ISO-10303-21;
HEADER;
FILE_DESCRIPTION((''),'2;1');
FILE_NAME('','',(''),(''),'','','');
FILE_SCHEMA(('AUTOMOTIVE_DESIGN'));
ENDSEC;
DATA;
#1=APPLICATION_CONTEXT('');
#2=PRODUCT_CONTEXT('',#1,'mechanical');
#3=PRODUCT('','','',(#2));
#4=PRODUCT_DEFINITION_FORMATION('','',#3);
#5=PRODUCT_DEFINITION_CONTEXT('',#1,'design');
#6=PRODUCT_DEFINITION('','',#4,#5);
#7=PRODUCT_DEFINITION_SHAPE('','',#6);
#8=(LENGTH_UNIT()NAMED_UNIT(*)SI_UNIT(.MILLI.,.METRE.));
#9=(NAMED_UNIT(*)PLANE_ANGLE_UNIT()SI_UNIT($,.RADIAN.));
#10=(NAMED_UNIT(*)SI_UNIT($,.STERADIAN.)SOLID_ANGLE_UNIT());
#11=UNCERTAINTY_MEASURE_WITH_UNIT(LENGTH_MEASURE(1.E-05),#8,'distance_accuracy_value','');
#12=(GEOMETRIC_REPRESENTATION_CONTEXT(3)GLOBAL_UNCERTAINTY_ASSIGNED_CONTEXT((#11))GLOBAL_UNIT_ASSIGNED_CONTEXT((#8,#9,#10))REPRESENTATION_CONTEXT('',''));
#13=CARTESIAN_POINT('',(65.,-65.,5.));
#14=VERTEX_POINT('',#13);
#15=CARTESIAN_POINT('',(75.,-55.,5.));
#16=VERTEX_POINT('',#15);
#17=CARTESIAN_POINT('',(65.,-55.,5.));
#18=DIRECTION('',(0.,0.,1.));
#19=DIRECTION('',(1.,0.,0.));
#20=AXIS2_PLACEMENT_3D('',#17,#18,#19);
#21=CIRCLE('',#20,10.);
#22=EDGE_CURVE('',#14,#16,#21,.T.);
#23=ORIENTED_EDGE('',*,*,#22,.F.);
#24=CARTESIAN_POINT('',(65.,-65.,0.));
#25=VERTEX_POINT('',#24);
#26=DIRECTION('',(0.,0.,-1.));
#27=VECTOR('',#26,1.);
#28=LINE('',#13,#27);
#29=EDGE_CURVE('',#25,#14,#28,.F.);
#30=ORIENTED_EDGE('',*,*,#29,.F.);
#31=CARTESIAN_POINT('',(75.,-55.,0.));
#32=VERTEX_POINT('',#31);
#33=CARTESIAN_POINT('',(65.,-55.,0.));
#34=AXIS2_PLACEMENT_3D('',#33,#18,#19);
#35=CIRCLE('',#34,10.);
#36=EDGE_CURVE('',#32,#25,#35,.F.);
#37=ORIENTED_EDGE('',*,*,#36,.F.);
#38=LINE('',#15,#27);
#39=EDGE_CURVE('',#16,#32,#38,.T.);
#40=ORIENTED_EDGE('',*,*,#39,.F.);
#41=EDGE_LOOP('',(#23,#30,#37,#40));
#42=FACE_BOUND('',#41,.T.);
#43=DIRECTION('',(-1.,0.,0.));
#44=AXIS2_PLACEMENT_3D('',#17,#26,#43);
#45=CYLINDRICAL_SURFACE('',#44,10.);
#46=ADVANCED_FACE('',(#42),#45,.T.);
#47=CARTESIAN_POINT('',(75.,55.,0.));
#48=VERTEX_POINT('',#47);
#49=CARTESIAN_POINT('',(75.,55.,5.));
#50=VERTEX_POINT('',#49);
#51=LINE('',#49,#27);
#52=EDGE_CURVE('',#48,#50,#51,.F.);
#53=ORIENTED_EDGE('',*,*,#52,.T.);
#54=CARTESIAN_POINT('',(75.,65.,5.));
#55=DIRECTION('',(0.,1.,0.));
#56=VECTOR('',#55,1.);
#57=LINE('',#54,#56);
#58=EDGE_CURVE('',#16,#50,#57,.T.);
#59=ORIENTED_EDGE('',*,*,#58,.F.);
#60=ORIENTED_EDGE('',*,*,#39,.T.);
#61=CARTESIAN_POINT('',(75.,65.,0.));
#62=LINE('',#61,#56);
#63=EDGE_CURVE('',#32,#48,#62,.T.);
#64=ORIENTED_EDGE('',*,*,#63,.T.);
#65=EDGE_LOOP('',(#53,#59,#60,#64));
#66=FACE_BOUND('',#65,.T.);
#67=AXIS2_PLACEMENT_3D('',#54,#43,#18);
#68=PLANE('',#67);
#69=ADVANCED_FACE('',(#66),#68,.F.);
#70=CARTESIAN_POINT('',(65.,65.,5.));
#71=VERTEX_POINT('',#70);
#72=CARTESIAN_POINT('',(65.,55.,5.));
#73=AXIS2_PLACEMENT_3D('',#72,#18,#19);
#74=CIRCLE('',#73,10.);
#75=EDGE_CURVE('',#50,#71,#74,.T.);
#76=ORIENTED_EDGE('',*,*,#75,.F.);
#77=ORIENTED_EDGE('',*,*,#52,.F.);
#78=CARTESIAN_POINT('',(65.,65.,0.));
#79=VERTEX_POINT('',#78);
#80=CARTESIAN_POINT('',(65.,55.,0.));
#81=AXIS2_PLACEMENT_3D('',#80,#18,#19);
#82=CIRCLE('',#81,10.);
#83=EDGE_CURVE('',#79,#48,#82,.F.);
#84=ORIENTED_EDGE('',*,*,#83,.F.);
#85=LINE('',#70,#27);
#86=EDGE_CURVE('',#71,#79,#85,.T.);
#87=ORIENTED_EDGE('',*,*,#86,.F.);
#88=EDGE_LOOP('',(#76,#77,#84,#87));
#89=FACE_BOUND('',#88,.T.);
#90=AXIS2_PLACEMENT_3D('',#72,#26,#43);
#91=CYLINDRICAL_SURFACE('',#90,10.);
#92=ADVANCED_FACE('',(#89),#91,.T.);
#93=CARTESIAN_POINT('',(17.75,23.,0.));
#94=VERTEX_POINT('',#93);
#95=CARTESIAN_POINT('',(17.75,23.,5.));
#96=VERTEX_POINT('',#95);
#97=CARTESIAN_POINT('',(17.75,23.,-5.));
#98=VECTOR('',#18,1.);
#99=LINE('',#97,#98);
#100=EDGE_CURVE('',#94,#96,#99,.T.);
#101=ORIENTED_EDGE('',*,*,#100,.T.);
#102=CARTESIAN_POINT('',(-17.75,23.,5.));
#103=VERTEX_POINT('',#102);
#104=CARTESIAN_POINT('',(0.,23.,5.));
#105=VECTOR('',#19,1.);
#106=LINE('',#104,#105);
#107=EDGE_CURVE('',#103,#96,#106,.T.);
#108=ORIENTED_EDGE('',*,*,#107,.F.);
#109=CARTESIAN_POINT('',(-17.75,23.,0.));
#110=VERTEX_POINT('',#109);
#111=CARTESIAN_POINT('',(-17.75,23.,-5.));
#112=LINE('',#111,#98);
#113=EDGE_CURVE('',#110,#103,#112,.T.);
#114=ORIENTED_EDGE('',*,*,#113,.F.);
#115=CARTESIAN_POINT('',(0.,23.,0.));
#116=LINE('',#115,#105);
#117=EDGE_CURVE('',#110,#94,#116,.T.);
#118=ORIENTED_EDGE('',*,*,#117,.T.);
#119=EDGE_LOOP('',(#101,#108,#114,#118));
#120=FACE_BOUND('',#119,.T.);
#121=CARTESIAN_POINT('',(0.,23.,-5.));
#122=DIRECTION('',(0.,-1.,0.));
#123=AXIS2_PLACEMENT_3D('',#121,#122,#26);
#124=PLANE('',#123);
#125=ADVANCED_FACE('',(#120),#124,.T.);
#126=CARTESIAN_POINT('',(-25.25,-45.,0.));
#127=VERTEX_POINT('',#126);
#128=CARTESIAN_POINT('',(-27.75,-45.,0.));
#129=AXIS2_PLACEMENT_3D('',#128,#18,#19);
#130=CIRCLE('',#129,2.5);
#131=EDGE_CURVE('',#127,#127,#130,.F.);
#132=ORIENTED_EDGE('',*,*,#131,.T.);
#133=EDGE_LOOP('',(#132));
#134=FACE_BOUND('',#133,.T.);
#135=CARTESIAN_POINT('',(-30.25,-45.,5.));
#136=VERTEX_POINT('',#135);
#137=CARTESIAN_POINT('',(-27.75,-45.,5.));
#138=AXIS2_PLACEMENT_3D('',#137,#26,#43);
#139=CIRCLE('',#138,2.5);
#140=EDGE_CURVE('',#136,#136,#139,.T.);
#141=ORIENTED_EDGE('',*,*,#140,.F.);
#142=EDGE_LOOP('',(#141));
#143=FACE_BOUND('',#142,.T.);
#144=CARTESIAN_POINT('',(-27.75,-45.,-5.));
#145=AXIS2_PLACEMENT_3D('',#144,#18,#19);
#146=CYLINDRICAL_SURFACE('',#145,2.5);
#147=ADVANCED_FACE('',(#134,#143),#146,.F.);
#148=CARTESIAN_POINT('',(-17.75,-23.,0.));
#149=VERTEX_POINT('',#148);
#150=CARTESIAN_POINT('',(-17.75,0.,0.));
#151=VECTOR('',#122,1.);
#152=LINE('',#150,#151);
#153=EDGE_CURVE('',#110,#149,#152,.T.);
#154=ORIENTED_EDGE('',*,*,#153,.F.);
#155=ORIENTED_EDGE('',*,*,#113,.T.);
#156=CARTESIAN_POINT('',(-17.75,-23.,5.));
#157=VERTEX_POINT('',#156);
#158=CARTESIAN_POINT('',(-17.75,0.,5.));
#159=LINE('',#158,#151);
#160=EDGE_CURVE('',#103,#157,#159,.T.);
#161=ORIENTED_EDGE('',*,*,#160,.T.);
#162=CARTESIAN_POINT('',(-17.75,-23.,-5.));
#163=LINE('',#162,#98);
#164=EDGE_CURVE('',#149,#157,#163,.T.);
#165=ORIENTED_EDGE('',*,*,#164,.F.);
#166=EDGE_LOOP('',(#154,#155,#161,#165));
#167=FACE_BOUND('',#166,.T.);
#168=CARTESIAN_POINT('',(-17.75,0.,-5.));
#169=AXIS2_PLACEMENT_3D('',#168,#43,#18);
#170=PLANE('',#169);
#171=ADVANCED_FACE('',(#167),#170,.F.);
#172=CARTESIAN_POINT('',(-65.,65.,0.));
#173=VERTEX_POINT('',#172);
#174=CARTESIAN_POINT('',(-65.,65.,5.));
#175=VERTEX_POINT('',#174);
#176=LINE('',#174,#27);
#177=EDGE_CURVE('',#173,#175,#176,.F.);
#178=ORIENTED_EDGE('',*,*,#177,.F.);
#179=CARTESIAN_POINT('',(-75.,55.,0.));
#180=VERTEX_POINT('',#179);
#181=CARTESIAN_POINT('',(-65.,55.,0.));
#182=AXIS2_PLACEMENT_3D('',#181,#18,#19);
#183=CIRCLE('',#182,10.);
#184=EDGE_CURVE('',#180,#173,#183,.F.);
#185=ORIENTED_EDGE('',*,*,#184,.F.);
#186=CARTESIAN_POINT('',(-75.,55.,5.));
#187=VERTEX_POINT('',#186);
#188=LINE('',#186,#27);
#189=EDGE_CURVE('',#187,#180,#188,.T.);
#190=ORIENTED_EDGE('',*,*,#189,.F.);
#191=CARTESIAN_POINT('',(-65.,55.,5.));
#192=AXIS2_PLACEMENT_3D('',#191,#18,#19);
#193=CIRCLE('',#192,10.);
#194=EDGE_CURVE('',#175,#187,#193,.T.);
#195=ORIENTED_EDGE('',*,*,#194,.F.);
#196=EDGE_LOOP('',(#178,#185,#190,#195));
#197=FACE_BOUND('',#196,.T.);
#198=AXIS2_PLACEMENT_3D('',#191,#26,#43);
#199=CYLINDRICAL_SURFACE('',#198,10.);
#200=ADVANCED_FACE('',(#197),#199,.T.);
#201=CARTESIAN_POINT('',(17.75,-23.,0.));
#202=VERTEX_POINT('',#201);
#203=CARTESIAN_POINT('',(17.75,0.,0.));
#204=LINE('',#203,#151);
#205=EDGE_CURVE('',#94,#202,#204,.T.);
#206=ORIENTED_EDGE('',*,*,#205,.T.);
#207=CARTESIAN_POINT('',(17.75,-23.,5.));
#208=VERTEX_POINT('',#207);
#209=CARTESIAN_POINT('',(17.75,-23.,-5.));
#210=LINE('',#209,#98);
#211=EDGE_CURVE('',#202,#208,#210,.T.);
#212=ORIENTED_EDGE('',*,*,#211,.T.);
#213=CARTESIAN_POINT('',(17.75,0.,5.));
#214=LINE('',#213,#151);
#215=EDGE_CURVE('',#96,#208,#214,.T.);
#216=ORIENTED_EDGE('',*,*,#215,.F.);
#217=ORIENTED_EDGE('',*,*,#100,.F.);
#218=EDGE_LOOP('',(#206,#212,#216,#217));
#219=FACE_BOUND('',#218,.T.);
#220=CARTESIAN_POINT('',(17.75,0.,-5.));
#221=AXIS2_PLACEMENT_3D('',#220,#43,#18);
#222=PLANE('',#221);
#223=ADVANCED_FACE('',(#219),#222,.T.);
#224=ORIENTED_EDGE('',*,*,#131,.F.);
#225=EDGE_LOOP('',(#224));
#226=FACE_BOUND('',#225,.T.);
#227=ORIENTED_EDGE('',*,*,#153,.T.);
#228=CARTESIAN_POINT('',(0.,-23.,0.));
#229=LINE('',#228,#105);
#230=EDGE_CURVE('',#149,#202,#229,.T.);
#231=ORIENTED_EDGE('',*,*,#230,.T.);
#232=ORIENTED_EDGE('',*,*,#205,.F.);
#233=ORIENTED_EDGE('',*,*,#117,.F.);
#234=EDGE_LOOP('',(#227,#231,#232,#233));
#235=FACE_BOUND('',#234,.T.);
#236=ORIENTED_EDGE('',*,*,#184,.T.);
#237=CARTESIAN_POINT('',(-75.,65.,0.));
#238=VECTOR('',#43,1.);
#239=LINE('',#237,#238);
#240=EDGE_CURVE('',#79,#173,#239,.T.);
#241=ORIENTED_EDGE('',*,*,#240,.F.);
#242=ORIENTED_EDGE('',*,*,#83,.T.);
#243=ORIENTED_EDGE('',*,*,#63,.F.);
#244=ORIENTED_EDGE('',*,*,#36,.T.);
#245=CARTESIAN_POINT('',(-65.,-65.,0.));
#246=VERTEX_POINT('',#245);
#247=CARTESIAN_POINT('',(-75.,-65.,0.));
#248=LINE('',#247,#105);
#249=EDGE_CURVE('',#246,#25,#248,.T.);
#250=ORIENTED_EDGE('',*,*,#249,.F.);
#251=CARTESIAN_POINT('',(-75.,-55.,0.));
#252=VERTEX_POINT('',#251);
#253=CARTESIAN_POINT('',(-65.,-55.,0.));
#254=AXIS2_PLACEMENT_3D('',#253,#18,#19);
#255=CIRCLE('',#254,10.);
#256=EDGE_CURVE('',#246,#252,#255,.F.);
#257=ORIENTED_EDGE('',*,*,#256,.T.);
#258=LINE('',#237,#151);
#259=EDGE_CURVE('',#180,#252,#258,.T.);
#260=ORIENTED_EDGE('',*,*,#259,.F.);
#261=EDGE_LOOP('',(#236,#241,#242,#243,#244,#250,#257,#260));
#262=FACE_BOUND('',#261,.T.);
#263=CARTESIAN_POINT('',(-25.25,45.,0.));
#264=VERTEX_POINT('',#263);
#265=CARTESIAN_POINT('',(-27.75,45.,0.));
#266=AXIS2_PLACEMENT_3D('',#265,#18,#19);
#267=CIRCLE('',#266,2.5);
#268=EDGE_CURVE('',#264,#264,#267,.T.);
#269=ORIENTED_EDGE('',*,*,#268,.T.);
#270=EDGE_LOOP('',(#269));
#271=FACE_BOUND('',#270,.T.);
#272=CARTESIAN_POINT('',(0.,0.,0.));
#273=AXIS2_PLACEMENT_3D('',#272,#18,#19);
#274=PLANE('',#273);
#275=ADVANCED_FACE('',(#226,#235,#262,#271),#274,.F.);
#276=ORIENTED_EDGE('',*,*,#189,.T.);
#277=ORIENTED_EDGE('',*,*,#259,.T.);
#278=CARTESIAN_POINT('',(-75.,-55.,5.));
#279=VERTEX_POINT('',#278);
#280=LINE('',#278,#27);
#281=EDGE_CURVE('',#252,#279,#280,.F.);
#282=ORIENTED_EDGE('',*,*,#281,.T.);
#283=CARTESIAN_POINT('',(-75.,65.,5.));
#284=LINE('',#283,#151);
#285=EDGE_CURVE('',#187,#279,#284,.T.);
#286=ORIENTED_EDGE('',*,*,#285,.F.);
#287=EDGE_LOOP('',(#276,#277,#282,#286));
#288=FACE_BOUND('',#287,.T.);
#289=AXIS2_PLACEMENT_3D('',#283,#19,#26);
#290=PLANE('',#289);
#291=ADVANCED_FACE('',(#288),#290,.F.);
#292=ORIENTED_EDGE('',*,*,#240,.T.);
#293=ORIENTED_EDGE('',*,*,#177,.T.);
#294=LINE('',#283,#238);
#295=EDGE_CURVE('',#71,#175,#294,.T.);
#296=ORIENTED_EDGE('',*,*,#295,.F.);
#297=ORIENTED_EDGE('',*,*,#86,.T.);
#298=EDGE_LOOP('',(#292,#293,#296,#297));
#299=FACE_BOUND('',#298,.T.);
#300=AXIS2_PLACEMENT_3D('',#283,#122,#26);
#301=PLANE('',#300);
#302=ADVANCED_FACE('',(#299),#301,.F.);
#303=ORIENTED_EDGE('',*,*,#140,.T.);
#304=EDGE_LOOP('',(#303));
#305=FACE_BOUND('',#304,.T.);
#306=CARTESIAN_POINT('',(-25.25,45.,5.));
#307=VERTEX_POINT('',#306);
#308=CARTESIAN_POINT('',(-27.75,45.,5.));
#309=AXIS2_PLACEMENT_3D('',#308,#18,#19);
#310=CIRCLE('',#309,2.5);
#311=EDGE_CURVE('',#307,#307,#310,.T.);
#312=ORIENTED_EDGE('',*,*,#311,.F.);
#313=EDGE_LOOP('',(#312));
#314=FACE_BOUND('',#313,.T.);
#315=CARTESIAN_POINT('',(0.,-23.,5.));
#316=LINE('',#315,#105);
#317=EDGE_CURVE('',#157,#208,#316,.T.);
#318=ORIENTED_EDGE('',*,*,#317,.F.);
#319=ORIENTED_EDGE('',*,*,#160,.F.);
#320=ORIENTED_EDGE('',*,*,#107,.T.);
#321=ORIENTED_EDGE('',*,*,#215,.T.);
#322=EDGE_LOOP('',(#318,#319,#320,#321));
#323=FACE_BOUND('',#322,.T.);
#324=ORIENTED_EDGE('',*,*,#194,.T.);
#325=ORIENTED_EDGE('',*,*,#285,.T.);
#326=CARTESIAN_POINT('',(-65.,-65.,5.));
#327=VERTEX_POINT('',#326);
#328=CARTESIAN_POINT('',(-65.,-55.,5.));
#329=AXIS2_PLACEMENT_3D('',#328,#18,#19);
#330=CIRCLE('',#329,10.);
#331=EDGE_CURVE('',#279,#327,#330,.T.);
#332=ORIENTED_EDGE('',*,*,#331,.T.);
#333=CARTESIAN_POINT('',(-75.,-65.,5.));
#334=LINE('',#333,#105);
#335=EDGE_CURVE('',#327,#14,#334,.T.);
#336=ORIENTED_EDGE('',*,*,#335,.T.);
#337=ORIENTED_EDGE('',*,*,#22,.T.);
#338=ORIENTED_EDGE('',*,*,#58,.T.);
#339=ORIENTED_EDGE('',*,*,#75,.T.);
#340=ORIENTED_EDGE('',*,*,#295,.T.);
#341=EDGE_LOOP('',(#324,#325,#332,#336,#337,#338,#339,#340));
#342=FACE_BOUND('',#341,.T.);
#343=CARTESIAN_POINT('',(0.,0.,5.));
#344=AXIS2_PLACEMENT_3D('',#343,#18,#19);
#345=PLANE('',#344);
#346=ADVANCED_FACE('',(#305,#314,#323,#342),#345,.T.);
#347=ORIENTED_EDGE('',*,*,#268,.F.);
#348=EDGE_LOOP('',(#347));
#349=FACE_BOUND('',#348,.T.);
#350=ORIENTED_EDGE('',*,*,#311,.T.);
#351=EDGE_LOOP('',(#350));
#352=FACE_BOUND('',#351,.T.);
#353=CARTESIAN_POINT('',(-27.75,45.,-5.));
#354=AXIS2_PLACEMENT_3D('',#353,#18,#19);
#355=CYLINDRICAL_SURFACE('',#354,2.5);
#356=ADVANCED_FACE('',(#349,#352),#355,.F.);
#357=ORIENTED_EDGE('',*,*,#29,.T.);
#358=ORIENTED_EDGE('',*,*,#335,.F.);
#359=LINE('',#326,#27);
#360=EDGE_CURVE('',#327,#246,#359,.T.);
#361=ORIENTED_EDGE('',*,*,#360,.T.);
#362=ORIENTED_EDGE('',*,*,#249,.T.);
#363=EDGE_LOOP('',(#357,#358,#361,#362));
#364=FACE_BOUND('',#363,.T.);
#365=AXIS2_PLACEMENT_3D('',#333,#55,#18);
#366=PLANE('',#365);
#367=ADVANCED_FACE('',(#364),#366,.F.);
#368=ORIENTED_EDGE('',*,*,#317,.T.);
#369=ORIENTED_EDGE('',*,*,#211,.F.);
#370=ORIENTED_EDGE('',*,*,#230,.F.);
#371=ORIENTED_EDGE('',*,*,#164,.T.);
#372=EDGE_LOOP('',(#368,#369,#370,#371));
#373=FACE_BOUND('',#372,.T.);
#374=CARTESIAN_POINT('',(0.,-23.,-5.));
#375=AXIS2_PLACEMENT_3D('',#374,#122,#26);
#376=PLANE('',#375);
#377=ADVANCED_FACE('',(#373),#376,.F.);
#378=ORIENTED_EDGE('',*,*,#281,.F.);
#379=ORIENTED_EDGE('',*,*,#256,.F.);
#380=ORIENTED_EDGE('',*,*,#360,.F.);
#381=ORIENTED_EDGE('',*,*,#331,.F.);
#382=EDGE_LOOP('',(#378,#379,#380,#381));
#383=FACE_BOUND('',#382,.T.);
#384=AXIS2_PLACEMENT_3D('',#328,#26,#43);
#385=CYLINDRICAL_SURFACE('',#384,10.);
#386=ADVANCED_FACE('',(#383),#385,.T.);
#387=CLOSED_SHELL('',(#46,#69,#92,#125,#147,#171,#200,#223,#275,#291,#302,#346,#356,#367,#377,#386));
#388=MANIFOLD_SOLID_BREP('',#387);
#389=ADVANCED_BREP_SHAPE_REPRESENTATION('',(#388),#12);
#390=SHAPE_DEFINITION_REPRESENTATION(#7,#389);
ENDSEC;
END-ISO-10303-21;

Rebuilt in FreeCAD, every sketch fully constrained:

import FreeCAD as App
import Part
import Sketcher
from FreeCAD import Vector
Q = App.Units.Quantity


def edges_at(feature, points):
    """Names of the edges that pass closest to the given points."""
    edges = feature.Shape.Edges
    near = lambda p: min(range(len(edges)), key=lambda i: edges[i].distToShape(Part.Vertex(*p))[0])
    return sorted({f"Edge{near(p) + 1}" for p in points})

doc = App.newDocument("Part")
body = doc.addObject("PartDesign::Body", "Body")

# Sketch on XY plane
sketch1 = body.newObject("Sketcher::SketchObject", "Sketch")
sketch1.AttachmentSupport = (doc.getObject("XY_Plane"), [""])
sketch1.MapMode = "FlatFace"
sketch1.addGeometry(Part.LineSegment(Vector(-75, 65, 0), Vector(-75, -65, 0)), False)
sketch1.addGeometry(Part.LineSegment(Vector(-75, -65, 0), Vector(75, -65, 0)), False)
sketch1.addGeometry(Part.LineSegment(Vector(75, -65, 0), Vector(75, 65, 0)), False)
sketch1.addGeometry(Part.LineSegment(Vector(75, 65, 0), Vector(-75, 65, 0)), False)
sketch1.addConstraint(Sketcher.Constraint("Coincident", 0, 2, 1, 1))
sketch1.addConstraint(Sketcher.Constraint("Coincident", 1, 2, 2, 1))
sketch1.addConstraint(Sketcher.Constraint("Coincident", 2, 2, 3, 1))
sketch1.addConstraint(Sketcher.Constraint("Coincident", 3, 2, 0, 1))
sketch1.addConstraint(Sketcher.Constraint("Vertical", 0))
sketch1.addConstraint(Sketcher.Constraint("Horizontal", 1))
sketch1.addConstraint(Sketcher.Constraint("Vertical", 2))
sketch1.addConstraint(Sketcher.Constraint("Horizontal", 3))
sketch1.addConstraint(Sketcher.Constraint("Symmetric", 0, 2, 2, 2, -1, 1))
sketch1.addConstraint(Sketcher.Constraint("DistanceX", 1, 1, 1, 2, Q("150 mm")))
sketch1.addConstraint(Sketcher.Constraint("DistanceY", 0, 2, 0, 1, Q("130 mm")))
pad1 = body.newObject("PartDesign::Pad", "Pad")
pad1.Profile = sketch1
pad1.Length = 5

# Sketch on XY plane
sketch2 = body.newObject("Sketcher::SketchObject", "Sketch001")
sketch2.AttachmentSupport = (doc.getObject("XY_Plane"), [""])
sketch2.MapMode = "FlatFace"
sketch2.AttachmentOffset = App.Placement(Vector(0, 0, 5), App.Rotation())
sketch2.addGeometry(Part.LineSegment(Vector(-17.8, 23, 0), Vector(-17.8, -23, 0)), False)
sketch2.addGeometry(Part.LineSegment(Vector(-17.8, -23, 0), Vector(17.8, -23, 0)), False)
sketch2.addGeometry(Part.LineSegment(Vector(17.8, -23, 0), Vector(17.8, 23, 0)), False)
sketch2.addGeometry(Part.LineSegment(Vector(17.8, 23, 0), Vector(-17.8, 23, 0)), False)
sketch2.addGeometry(Part.Circle(Vector(-27.8, -45, 0), Vector(0, 0, 1), 2.5), False)
sketch2.addGeometry(Part.Circle(Vector(-27.8, 45, 0), Vector(0, 0, 1), 2.5), False)
sketch2.addConstraint(Sketcher.Constraint("Coincident", 0, 2, 1, 1))
sketch2.addConstraint(Sketcher.Constraint("Coincident", 1, 2, 2, 1))
sketch2.addConstraint(Sketcher.Constraint("Coincident", 2, 2, 3, 1))
sketch2.addConstraint(Sketcher.Constraint("Coincident", 3, 2, 0, 1))
sketch2.addConstraint(Sketcher.Constraint("Vertical", 0))
sketch2.addConstraint(Sketcher.Constraint("Horizontal", 1))
sketch2.addConstraint(Sketcher.Constraint("Vertical", 2))
sketch2.addConstraint(Sketcher.Constraint("Horizontal", 3))
sketch2.addConstraint(Sketcher.Constraint("Equal", 4, 5))
sketch2.addConstraint(Sketcher.Constraint("Symmetric", 0, 2, 2, 2, -1, 1))
sketch2.addConstraint(Sketcher.Constraint("Symmetric", 4, 3, 5, 3, -1))
sketch2.addConstraint(Sketcher.Constraint("Diameter", 4, Q("5 mm")))
sketch2.addConstraint(Sketcher.Constraint("DistanceY", 0, 2, 0, 1, Q("46 mm")))
sketch2.addConstraint(Sketcher.Constraint("DistanceX", 1, 1, 1, 2, Q("35.5 mm")))
sketch2.addConstraint(Sketcher.Constraint("DistanceY", 4, 3, -1, 1, Q("45 mm")))
sketch2.addConstraint(Sketcher.Constraint("DistanceX", 4, 3, 0, 2, Q("10 mm")))
pocket1 = body.newObject("PartDesign::Pocket", "Pocket")
pocket1.Profile = sketch2
pocket1.Length = 10
doc.recompute()

fillet = body.newObject("PartDesign::Fillet", "Fillet")
fillet.Base = (pocket1, edges_at(pocket1, [
    (75, -65, 2.5),
    (-75, -65, 2.5),
    (-75, 65, 2.5),
    (75, 65, 2.5),
]))
fillet.Radius = 10

doc.recompute()
